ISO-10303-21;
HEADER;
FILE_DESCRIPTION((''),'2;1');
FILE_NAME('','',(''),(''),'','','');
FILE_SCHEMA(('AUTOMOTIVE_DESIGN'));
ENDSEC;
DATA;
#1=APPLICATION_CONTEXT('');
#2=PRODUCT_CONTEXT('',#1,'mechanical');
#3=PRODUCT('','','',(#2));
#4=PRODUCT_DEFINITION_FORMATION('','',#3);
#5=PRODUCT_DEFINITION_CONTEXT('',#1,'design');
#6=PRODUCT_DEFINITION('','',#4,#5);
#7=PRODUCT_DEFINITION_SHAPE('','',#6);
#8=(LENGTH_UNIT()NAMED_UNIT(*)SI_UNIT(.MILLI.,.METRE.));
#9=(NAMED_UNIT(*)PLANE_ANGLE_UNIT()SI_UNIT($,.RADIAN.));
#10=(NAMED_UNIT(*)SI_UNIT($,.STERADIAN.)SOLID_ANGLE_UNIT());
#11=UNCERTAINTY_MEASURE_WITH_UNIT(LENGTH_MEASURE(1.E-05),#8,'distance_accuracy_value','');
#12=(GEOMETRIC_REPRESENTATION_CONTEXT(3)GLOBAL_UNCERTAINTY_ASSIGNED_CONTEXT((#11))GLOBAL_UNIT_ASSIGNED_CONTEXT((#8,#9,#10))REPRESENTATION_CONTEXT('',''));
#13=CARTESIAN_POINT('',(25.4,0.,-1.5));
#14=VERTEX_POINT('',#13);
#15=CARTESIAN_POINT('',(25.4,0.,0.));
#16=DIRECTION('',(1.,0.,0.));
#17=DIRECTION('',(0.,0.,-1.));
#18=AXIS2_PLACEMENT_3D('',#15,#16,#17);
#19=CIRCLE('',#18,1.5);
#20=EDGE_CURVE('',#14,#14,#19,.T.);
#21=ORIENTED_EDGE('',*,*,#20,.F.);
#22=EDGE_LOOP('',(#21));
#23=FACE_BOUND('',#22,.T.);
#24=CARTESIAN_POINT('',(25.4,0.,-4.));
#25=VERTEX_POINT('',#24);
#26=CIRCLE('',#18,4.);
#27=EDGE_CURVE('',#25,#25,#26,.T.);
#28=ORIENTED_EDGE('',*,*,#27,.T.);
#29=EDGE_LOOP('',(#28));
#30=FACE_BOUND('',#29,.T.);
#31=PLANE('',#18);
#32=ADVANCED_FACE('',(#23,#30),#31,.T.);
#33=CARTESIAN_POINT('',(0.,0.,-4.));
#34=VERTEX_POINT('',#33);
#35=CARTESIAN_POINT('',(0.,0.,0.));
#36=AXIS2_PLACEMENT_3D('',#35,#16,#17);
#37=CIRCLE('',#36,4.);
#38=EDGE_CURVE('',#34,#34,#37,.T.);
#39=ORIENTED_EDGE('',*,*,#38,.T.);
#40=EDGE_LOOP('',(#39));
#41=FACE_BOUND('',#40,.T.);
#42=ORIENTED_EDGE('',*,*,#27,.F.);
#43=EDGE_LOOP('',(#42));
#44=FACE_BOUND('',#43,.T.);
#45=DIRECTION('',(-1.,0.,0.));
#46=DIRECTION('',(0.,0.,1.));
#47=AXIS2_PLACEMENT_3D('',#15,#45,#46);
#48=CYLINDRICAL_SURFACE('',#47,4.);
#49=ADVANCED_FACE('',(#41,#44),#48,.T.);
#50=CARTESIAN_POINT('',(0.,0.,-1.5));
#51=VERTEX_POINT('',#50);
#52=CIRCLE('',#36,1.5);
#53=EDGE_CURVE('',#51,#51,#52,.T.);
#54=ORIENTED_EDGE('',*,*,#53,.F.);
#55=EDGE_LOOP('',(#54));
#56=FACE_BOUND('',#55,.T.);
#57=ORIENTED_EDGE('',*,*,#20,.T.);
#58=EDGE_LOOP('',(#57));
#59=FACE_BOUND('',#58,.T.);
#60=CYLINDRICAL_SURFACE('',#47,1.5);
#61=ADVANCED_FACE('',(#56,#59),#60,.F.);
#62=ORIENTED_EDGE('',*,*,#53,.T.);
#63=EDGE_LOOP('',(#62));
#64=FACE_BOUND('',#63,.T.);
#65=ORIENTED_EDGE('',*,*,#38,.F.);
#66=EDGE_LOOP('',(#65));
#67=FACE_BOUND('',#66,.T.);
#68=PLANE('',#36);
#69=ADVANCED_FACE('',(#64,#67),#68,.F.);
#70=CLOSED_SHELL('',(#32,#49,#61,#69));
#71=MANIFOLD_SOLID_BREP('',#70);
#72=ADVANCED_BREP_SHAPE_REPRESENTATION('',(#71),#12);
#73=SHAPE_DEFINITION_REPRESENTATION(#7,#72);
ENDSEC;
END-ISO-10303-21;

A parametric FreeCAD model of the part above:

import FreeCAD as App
import Part
import Sketcher

V = App.Vector

doc = App.newDocument("Part")
body = doc.addObject("PartDesign::Body", "Body")

sketch1 = body.newObject("Sketcher::SketchObject", "Sketch")
sketch1.AttachmentSupport = (doc.getObject("YZ_Plane"), [""])
sketch1.MapMode = "FlatFace"
sketch1.addGeometry([
    Part.Circle(V(0, 0, 0), V(0, 0, 1), 4),
    Part.Circle(V(0, 0, 0), V(0, 0, 1), 1.5),
], False)
sketch1.addConstraint([
    Sketcher.Constraint("Coincident", 0, 3, -1, 1),
    Sketcher.Constraint("Coincident", 1, 3, -1, 1),
    Sketcher.Constraint("Diameter", 0, 8.0),
    Sketcher.Constraint("Diameter", 1, 3.0),
])
pad1 = body.newObject("PartDesign::Pad", "Pad")
pad1.Profile = sketch1
pad1.Length = 25.4

doc.recompute()
